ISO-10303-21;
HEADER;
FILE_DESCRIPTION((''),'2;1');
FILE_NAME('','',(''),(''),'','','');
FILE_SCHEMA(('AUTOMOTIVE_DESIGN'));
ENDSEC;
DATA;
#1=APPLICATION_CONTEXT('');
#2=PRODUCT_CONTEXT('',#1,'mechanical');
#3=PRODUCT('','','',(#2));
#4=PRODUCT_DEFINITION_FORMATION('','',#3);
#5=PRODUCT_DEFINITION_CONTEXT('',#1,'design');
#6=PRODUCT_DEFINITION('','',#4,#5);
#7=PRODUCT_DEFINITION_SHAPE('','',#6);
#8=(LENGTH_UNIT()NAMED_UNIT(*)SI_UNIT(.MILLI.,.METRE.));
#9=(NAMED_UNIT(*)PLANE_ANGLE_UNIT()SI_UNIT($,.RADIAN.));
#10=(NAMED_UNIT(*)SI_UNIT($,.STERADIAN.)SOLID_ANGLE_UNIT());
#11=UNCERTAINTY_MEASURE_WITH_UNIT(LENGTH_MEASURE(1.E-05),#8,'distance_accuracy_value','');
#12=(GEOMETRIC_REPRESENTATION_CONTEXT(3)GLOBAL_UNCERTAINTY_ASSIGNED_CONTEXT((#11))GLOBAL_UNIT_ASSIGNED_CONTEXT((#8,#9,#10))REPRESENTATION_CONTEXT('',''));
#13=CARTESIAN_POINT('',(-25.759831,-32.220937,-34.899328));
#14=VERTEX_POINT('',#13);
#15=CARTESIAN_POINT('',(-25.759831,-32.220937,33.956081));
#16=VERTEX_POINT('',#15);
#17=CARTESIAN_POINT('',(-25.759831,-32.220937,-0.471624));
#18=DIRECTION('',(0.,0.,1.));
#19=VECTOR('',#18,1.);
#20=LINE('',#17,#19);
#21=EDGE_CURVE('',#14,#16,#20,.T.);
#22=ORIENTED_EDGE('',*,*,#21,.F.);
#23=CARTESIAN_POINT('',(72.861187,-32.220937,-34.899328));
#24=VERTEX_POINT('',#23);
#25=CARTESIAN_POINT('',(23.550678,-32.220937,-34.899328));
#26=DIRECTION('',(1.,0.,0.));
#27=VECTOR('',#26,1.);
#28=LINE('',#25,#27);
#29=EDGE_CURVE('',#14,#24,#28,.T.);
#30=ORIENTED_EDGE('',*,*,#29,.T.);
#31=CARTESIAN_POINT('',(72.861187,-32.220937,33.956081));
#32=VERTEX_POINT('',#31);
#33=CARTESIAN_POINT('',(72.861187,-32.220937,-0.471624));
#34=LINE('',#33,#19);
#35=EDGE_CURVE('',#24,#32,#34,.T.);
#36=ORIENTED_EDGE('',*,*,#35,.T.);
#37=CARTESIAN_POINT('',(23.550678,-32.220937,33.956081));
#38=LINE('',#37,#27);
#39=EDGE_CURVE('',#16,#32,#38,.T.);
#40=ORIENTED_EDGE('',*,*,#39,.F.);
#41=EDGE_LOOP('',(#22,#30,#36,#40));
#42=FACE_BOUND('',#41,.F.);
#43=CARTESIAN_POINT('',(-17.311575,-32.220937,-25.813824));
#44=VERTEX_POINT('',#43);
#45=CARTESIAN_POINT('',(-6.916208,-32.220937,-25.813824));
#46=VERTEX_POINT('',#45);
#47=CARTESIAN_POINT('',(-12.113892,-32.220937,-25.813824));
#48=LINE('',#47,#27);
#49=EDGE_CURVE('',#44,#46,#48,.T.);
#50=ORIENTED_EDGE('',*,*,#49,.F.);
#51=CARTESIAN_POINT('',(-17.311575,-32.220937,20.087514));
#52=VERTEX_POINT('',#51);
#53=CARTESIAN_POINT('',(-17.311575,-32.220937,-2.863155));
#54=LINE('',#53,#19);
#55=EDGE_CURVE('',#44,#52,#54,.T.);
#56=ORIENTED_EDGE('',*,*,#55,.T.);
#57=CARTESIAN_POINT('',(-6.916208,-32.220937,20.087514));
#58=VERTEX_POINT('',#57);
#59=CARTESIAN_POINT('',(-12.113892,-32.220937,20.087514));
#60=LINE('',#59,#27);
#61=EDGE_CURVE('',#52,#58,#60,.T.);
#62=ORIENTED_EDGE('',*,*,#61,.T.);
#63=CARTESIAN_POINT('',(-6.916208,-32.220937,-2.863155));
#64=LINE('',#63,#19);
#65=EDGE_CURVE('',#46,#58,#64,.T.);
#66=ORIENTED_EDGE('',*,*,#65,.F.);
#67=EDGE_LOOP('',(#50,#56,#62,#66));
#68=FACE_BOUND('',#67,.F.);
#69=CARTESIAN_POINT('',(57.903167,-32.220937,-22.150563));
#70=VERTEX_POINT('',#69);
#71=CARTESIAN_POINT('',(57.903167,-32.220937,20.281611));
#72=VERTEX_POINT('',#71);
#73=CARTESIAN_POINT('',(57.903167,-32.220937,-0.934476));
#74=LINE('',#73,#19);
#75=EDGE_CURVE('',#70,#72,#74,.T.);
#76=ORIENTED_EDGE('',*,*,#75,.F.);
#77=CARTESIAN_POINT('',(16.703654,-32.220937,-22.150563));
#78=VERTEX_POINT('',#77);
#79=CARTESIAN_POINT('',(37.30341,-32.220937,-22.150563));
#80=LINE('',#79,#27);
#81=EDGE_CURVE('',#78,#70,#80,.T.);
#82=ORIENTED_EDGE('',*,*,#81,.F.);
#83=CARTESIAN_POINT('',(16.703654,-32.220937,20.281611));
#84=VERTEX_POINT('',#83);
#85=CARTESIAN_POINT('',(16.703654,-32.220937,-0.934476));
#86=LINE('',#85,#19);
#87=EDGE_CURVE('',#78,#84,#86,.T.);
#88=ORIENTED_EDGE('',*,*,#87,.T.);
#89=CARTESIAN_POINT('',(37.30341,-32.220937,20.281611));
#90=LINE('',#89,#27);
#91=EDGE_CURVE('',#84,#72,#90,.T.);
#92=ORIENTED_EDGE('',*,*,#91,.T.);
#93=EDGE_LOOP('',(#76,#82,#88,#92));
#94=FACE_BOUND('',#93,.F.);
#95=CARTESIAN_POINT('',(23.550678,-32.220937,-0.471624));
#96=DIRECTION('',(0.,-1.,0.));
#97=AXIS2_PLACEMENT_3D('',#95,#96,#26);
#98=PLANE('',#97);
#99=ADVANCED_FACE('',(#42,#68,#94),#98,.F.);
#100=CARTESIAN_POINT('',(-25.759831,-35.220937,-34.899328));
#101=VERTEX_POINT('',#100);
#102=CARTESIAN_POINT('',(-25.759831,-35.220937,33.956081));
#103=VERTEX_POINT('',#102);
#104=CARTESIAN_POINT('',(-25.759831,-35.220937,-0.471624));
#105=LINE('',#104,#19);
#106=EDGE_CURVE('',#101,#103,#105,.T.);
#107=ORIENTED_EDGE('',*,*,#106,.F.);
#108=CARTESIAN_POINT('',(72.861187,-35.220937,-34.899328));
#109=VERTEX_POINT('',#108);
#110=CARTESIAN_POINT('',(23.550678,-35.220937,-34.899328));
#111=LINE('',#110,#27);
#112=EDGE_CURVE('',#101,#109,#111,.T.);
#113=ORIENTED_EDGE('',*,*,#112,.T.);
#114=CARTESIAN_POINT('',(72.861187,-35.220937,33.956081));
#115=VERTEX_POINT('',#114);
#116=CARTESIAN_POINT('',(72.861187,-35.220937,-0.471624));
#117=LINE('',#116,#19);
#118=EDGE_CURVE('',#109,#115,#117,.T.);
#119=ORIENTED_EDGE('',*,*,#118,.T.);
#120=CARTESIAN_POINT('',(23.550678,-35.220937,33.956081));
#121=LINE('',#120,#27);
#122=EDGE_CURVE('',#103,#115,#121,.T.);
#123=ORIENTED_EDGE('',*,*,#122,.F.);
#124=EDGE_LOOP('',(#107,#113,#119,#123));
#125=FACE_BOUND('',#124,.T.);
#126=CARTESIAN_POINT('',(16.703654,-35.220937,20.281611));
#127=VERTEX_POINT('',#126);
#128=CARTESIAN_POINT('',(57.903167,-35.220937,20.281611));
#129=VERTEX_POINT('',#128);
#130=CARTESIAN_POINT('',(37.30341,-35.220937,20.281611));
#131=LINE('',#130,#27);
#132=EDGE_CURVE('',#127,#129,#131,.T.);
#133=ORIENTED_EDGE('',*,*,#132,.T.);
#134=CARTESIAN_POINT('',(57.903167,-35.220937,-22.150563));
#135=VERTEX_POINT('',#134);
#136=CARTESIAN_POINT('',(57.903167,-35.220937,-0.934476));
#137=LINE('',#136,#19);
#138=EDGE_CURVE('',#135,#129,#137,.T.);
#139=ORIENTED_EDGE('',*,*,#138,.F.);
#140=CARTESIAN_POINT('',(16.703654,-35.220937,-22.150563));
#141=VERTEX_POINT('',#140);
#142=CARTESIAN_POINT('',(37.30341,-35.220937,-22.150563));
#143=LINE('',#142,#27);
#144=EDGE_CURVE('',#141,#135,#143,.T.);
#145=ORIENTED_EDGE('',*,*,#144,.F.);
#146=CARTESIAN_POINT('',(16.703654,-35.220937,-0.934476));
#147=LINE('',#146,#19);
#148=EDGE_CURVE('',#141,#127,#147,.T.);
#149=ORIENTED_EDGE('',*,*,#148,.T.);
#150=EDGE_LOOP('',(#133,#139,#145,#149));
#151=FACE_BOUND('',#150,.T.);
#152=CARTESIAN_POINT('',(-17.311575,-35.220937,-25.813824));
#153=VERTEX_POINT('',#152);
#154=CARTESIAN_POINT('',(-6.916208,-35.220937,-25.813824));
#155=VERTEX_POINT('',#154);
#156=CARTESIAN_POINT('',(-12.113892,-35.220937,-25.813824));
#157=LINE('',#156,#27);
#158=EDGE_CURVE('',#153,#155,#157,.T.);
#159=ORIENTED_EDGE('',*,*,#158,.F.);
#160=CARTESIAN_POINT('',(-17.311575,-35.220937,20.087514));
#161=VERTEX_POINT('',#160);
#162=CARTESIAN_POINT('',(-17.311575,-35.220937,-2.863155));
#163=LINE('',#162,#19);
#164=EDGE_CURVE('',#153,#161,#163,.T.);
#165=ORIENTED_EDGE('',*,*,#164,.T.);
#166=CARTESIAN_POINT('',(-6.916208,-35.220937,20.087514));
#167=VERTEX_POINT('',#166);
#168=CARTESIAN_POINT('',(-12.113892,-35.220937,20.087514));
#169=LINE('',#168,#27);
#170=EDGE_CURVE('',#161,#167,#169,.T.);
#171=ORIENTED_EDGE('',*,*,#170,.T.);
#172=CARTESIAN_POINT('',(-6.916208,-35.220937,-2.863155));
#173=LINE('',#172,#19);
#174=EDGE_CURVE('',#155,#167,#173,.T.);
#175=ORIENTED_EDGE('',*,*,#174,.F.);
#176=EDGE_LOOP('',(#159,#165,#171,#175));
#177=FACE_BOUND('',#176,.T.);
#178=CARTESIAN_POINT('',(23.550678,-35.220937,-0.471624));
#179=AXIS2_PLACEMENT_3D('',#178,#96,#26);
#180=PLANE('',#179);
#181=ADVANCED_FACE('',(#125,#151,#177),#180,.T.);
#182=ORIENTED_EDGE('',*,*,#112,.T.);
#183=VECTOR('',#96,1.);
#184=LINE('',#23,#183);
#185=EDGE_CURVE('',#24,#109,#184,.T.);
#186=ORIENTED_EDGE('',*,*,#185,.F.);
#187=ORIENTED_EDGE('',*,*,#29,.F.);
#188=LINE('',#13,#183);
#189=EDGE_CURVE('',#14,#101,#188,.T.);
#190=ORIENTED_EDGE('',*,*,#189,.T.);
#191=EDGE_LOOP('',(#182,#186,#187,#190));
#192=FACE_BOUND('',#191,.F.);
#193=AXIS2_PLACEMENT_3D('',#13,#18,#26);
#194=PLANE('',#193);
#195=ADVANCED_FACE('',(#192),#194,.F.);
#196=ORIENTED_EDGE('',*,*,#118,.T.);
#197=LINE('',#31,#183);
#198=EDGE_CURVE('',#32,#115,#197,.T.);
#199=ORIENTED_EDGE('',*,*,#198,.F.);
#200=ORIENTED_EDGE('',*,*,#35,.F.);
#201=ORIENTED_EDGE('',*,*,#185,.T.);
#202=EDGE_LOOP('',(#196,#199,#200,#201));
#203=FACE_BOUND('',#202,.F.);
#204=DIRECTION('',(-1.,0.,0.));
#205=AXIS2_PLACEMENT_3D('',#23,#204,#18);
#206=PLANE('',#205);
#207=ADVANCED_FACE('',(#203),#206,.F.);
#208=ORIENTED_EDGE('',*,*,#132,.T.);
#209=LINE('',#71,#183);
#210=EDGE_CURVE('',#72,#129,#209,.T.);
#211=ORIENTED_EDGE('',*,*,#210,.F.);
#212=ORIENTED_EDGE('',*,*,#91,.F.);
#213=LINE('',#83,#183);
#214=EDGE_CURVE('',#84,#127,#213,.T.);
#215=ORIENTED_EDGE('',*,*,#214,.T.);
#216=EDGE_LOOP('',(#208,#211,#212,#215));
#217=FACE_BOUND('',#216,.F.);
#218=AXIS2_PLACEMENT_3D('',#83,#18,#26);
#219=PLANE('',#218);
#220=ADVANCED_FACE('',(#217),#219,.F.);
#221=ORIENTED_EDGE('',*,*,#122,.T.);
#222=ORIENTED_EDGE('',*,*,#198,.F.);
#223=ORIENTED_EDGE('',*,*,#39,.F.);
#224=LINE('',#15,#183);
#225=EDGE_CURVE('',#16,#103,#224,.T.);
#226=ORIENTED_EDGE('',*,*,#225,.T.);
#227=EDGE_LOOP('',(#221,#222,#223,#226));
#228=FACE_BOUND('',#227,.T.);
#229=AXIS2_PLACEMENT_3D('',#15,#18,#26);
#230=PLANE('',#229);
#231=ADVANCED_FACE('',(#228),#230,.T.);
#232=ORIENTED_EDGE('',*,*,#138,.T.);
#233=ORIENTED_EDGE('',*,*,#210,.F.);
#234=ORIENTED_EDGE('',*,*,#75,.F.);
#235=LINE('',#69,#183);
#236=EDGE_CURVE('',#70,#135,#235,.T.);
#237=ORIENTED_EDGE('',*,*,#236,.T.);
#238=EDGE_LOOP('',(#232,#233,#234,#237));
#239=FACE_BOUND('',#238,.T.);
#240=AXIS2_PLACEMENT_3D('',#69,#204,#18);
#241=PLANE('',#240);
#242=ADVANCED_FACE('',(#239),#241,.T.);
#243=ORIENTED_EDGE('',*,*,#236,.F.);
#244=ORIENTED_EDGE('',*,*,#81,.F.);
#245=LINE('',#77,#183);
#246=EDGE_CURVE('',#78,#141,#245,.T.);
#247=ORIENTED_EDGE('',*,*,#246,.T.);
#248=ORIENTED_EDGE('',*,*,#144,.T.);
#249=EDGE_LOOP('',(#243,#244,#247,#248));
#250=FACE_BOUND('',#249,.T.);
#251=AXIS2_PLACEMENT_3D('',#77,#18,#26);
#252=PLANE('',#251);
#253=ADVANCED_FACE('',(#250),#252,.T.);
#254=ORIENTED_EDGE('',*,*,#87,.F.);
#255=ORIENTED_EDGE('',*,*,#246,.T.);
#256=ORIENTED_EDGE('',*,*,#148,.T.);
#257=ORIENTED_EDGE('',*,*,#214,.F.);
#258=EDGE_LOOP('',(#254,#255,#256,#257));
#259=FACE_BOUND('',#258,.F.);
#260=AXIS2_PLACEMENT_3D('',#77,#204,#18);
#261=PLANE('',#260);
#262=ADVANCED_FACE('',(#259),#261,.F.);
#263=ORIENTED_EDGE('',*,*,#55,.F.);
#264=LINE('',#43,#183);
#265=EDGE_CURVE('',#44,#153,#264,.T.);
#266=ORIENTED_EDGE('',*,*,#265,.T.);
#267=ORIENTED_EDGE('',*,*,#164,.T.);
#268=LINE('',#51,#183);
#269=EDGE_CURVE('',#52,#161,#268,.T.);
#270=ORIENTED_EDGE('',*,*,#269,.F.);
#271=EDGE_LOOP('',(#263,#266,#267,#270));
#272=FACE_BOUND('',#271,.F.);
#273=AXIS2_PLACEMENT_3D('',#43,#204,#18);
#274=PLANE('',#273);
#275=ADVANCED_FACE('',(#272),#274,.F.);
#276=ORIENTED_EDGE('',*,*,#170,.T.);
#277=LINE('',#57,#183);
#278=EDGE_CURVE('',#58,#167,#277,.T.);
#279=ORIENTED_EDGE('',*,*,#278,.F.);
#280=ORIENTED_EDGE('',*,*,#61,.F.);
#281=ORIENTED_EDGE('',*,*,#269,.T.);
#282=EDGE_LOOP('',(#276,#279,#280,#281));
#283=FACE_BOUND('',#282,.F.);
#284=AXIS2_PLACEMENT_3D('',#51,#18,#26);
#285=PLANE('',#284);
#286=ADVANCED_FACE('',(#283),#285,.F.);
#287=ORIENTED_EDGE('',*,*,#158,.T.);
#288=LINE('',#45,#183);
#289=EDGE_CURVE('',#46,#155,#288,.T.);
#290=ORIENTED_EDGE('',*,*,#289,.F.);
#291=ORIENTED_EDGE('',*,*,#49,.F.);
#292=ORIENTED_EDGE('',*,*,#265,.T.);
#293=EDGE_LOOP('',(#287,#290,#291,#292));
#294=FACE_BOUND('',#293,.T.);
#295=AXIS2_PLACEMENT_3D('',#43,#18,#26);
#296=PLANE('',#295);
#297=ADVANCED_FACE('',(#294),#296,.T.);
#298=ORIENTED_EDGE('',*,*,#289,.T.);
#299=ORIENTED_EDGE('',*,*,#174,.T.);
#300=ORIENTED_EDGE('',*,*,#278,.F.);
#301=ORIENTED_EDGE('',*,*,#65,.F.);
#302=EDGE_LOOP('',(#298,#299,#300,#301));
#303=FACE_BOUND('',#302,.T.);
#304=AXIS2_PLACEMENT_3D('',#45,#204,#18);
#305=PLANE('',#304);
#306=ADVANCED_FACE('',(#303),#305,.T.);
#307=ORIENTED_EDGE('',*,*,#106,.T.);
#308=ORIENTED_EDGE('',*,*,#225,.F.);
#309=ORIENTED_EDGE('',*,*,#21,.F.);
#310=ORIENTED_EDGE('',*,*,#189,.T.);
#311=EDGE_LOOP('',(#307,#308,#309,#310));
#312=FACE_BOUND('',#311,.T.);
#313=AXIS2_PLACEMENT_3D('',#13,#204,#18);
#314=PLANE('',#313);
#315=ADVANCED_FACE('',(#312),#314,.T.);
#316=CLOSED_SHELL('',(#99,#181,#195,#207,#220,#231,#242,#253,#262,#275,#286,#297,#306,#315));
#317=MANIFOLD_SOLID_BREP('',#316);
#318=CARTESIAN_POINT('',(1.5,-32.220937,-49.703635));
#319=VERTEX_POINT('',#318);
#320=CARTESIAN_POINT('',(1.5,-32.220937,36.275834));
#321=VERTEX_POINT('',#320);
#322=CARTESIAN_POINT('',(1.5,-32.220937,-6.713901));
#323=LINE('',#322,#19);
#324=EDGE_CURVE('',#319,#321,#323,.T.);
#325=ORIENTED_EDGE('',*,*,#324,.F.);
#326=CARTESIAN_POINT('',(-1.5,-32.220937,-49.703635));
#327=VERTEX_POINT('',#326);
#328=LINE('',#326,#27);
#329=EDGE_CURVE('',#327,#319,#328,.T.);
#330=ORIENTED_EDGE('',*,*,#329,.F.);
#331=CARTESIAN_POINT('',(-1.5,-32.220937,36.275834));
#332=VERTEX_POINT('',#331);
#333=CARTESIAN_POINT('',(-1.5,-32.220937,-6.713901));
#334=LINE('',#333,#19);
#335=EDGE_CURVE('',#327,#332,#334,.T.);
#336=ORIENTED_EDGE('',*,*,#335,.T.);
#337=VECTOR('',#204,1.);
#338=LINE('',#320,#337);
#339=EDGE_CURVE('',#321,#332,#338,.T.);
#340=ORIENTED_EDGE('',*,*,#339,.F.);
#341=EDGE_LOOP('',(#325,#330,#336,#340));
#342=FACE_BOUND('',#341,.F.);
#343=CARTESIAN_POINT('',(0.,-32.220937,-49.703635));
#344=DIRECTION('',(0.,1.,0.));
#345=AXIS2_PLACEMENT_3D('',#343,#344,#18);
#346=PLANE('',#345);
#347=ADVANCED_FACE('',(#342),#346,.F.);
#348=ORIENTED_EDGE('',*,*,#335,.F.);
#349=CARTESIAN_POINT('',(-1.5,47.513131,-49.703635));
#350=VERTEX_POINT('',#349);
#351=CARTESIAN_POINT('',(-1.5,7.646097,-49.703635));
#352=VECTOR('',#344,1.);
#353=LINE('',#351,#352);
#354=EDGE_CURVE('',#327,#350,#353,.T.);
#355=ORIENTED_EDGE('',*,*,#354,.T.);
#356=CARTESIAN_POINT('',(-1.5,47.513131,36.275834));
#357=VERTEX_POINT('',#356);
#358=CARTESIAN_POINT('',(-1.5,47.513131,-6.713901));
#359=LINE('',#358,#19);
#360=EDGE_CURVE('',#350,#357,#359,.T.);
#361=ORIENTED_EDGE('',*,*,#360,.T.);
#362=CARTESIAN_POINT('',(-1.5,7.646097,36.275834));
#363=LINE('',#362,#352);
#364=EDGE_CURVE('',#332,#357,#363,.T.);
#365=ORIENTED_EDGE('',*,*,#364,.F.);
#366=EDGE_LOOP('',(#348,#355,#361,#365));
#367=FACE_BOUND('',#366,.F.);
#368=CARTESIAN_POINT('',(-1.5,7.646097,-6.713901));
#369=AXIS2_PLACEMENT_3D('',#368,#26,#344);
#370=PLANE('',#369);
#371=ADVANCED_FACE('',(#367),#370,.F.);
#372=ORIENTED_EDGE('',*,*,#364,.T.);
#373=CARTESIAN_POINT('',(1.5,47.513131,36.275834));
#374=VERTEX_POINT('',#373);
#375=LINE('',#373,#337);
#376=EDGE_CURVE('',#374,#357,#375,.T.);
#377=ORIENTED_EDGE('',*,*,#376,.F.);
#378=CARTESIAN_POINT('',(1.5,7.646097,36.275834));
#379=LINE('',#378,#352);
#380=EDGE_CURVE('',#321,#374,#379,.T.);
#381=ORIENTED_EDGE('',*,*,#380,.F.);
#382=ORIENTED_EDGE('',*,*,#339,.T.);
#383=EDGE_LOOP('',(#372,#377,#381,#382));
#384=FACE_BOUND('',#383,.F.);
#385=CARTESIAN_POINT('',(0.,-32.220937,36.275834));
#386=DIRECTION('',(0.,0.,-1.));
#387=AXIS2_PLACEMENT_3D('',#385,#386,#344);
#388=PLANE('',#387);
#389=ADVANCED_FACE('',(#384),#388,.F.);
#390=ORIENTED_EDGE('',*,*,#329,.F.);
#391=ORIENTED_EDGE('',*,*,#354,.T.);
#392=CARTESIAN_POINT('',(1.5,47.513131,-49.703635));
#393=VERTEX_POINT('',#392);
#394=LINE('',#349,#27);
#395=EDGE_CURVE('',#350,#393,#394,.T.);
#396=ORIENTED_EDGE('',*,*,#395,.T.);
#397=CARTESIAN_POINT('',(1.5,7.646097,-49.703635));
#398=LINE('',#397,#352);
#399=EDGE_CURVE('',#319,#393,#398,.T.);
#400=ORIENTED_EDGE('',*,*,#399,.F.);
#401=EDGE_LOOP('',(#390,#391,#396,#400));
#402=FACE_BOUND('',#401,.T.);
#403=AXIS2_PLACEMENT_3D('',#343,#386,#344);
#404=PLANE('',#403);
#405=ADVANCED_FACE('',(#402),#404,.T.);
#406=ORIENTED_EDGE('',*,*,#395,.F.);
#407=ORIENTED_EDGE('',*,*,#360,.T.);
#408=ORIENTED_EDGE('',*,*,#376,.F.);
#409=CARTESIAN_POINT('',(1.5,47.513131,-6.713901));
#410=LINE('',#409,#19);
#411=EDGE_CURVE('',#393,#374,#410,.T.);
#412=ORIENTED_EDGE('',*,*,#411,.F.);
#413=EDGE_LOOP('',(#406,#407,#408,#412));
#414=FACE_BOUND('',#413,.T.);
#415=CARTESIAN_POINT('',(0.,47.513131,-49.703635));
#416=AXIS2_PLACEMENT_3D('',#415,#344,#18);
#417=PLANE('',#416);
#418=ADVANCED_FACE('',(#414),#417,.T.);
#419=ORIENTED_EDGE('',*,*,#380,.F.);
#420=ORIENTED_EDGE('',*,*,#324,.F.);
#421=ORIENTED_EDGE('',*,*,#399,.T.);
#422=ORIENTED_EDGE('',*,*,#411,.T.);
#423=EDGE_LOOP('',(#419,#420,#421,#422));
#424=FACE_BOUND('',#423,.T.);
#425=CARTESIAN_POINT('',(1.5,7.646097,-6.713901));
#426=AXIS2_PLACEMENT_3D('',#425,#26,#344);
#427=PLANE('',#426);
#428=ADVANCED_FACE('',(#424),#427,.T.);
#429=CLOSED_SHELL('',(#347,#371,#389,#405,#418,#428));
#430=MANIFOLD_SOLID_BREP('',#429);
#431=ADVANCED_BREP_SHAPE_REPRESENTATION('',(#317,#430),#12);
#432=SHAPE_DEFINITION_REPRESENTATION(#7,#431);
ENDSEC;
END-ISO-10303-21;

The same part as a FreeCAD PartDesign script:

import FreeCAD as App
import Part
import Sketcher

V = App.Vector


def add_polygon(sketch, points):
    """Adds a closed chain of lines whose ends are joined by coincident constraints."""
    first, n = sketch.GeometryCount, len(points)
    for a, b in zip(points, points[1:] + points[:1]):
        sketch.addGeometry(Part.LineSegment(App.Vector(*a, 0), App.Vector(*b, 0)), False)
    for i in range(n):
        sketch.addConstraint(Sketcher.Constraint("Coincident", first + i, 2, first + (i + 1) % n, 1))

doc = App.newDocument("Part")
body = doc.addObject("PartDesign::Body", "Body")

# Sketch on YZ plane
sketch1 = body.newObject("Sketcher::SketchObject", "Sketch")
sketch1.AttachmentSupport = (doc.getObject("YZ_Plane"), [""])
sketch1.MapMode = "FlatFace"
add_polygon(sketch1, [(-32.220937, 36.275834), (-32.220937, -49.703635), (47.513131, -49.703635), (47.513131, 36.275834)])  # lines 0-3
sketch1.addConstraint([
    Sketcher.Constraint("Vertical", 0),
    Sketcher.Constraint("Horizontal", 1),
    Sketcher.Constraint("Vertical", 2),
    Sketcher.Constraint("Horizontal", 3),
    Sketcher.Constraint("DistanceX", 1, 1, 1, 2, 79.734068),
    Sketcher.Constraint("DistanceY", 0, 2, 0, 1, 85.979469),
    Sketcher.Constraint("DistanceX", -1, 1, 1, 2, 47.513131),
    Sketcher.Constraint("DistanceY", 0, 2, -1, 1, 49.703635),
])
pad1 = body.newObject("PartDesign::Pad", "Pad")
pad1.Profile = sketch1
pad1.Length = 3
pad1.Midplane = True
body2 = doc.addObject("PartDesign::Body", "Body001")

# Sketch on XZ plane
sketch2 = body2.newObject("Sketcher::SketchObject", "Sketch001")
sketch2.AttachmentSupport = (doc.getObject("XZ_Plane001"), [""])
sketch2.MapMode = "FlatFace"
sketch2.AttachmentOffset = App.Placement(V(0, 0, 32.220937), App.Rotation())
add_polygon(sketch2, [(-25.759831, 33.956081), (-25.759831, -34.899328), (72.861187, -34.899328), (72.861187, 33.956081)])  # lines 0-3
add_polygon(sketch2, [(-6.916208, -25.813824), (-17.311575, -25.813824), (-17.311575, 20.087514), (-6.916208, 20.087514)])  # lines 4-7
add_polygon(sketch2, [(57.903167, -22.150563), (16.703654, -22.150563), (16.703654, 20.281611), (57.903167, 20.281611)])  # lines 8-11
sketch2.addConstraint([
    Sketcher.Constraint("Vertical", 0),
    Sketcher.Constraint("Horizontal", 1),
    Sketcher.Constraint("Vertical", 2),
    Sketcher.Constraint("Horizontal", 3),
    Sketcher.Constraint("Horizontal", 4),
    Sketcher.Constraint("Vertical", 5),
    Sketcher.Constraint("Horizontal", 6),
    Sketcher.Constraint("Vertical", 7),
    Sketcher.Constraint("Horizontal", 8),
    Sketcher.Constraint("Vertical", 9),
    Sketcher.Constraint("Horizontal", 10),
    Sketcher.Constraint("Vertical", 11),
    Sketcher.Constraint("DistanceX", 1, 1, 1, 2, 98.621018),
    Sketcher.Constraint("DistanceY", 0, 2, 0, 1, 68.855409),
    Sketcher.Constraint("DistanceX", 4, 2, 4, 1, 10.395367),
    Sketcher.Constraint("DistanceX", 8, 2, 8, 1, 41.199513),
    Sketcher.Constraint("DistanceY", 5, 1, 5, 2, 45.901338),
    Sketcher.Constraint("DistanceY", 9, 1, 9, 2, 42.432174),
    Sketcher.Constraint("DistanceX", 0, 2, -1, 1, 25.759831),
    Sketcher.Constraint("DistanceY", -1, 1, 2, 2, 33.956081),
    Sketcher.Constraint("DistanceX", 6, 2, -1, 1, 6.916208),
    Sketcher.Constraint("DistanceY", -1, 1, 9, 2, 20.281611),
    Sketcher.Constraint("DistanceY", 0, 2, 5, 2, 54.986842),
    Sketcher.Constraint("DistanceX", 4, 2, 8, 2, 34.015229),
])
pad2 = body2.newObject("PartDesign::Pad", "Pad001")
pad2.Profile = sketch2
pad2.Length = 3

doc.recompute()
